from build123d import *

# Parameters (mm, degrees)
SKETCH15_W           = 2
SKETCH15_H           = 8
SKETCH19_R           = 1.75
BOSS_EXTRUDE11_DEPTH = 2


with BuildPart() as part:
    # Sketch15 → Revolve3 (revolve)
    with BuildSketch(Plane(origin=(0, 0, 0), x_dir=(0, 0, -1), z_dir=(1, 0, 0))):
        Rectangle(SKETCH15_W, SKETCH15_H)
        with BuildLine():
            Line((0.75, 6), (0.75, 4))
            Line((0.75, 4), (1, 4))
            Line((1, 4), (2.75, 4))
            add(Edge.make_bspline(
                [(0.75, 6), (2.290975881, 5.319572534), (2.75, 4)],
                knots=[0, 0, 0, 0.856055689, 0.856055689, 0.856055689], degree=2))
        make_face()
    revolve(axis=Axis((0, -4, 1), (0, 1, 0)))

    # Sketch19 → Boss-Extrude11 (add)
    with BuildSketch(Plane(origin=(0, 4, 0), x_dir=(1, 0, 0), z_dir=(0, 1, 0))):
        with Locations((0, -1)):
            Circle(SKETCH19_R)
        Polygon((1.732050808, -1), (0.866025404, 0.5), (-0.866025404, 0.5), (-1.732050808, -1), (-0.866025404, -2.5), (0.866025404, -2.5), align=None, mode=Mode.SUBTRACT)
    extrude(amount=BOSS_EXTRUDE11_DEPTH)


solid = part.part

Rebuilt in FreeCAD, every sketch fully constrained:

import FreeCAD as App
import Part
import Sketcher

V = App.Vector
Q = App.Units.Quantity


def add_polygon(sketch, points):
    """Adds a closed chain of lines whose ends are joined by coincident constraints."""
    first, n = sketch.GeometryCount, len(points)
    for a, b in zip(points, points[1:] + points[:1]):
        sketch.addGeometry(Part.LineSegment(App.Vector(*a, 0), App.Vector(*b, 0)), False)
    for i in range(n):
        sketch.addConstraint(Sketcher.Constraint("Coincident", first + i, 2, first + (i + 1) % n, 1))

doc = App.newDocument("Part")
body = doc.addObject("PartDesign::Body", "Body")

sketch1 = doc.addObject("Sketcher::SketchObject", "Sketch")
body.addObject(sketch1)
sketch1.AttachmentSupport = (doc.YZ_Plane, [""])
sketch1.MapMode = "FlatFace"
sketch1.addGeometry([
    Part.LineSegment(V(4, 1, 0), V(-4, 1, 0)),
    Part.LineSegment(V(-4, 1, 0), V(-4, -1, 0)),
    Part.LineSegment(V(-4, -1, 0), V(4, -1, 0)),
    Part.LineSegment(V(4, -1, 0), V(4, -2.75, 0)),
    Part.BSplineCurve([V(6, -0.75, 0), V(5.319573, -2.290976, 0), V(4, -2.75, 0)], [3, 3], [0, 0.856055689], False, 2, [1, 1, 1], False),
    Part.LineSegment(V(6, -0.75, 0), V(4, -0.75, 0)),
    Part.LineSegment(V(4, -0.75, 0), V(4, 1, 0)),
], False)
sketch1.addGeometry(Part.LineSegment(V(-4, 1, 0), V(6, 1, 0)), True)
sketch1.addConstraint([
    Sketcher.Constraint("Block", 4),
    Sketcher.Constraint("Coincident", 0, 2, 1, 1),
    Sketcher.Constraint("Coincident", 1, 2, 2, 1),
    Sketcher.Constraint("Coincident", 2, 2, 3, 1),
    Sketcher.Constraint("Coincident", 3, 2, 4, 2),
    Sketcher.Constraint("Coincident", 4, 1, 5, 1),
    Sketcher.Constraint("Coincident", 5, 2, 6, 1),
    Sketcher.Constraint("Coincident", 6, 2, 0, 1),
    Sketcher.Constraint("Horizontal", 0),
    Sketcher.Constraint("Vertical", 1),
    Sketcher.Constraint("Horizontal", 2),
    Sketcher.Constraint("Vertical", 3),
    Sketcher.Constraint("Horizontal", 5),
    Sketcher.Constraint("Vertical", 6),
    Sketcher.Constraint("Horizontal", 7),
    Sketcher.Constraint("Coincident", 7, 1, 0, 2),
    Sketcher.Constraint("Symmetric", 0, 2, 2, 2, -1, 1),
    Sketcher.Constraint("Vertical", 3, 2, 5, 2),
    Sketcher.Constraint("Equal", 5, 1),
    Sketcher.Constraint("DistanceX", 7, 1, 7, 2, 10.0),
])
revolution = doc.addObject("PartDesign::Revolution", "Revolution")
body.addObject(revolution)
revolution.Profile = sketch1
revolution.ReferenceAxis = (sketch1, ["Axis0"])
revolution.Angle = 360

sketch2 = doc.addObject("Sketcher::SketchObject", "Sketch001")
body.addObject(sketch2)
sketch2.AttachmentSupport = (doc.XZ_Plane, [""])
sketch2.MapMode = "FlatFace"
sketch2.AttachmentOffset = App.Placement(V(0, 0, -4), App.Rotation())
sketch2.addGeometry(Part.Circle(V(0, 1, 0), V(0, 0, 1), 1.75), False)
add_polygon(sketch2, [(0.866025, -0.5), (1.732051, 1), (0.866025, 2.5), (-0.866025, 2.5), (-1.732051, 1), (-0.866025, -0.5)])
sketch2.addConstraint([
    Sketcher.Constraint("Horizontal", 3),
    Sketcher.Constraint("Horizontal", 6),
    Sketcher.Constraint("Symmetric", 1, 2, 4, 2, -2),
    Sketcher.Constraint("PointOnObject", 0, 3, -2),
    Sketcher.Constraint("Parallel", 1, 4),
    Sketcher.Constraint("Parallel", 2, 5),
    Sketcher.Constraint("Horizontal", 0, 3, 1, 2),
    Sketcher.Constraint("Vertical", 3, 2, 5, 2),
    Sketcher.Constraint("Vertical", 2, 2, 6, 2),
    Sketcher.Constraint("Diameter", 0, 3.5),
    Sketcher.Constraint("Angle", 1, Q("60 deg")),
    Sketcher.Constraint("DistanceY", -1, 1, 0, 3, 1.0),
    Sketcher.Constraint("DistanceY", 5, 2, 3, 2, 3.0),
    Sketcher.Constraint("DistanceX", 3, 2, 3, 1, 1.732051),
])
pad1 = doc.addObject("PartDesign::Pad", "Pad")
body.addObject(pad1)
pad1.Profile = sketch2
pad1.Length = 2
pad1.Reversed = True

doc.recompute()
